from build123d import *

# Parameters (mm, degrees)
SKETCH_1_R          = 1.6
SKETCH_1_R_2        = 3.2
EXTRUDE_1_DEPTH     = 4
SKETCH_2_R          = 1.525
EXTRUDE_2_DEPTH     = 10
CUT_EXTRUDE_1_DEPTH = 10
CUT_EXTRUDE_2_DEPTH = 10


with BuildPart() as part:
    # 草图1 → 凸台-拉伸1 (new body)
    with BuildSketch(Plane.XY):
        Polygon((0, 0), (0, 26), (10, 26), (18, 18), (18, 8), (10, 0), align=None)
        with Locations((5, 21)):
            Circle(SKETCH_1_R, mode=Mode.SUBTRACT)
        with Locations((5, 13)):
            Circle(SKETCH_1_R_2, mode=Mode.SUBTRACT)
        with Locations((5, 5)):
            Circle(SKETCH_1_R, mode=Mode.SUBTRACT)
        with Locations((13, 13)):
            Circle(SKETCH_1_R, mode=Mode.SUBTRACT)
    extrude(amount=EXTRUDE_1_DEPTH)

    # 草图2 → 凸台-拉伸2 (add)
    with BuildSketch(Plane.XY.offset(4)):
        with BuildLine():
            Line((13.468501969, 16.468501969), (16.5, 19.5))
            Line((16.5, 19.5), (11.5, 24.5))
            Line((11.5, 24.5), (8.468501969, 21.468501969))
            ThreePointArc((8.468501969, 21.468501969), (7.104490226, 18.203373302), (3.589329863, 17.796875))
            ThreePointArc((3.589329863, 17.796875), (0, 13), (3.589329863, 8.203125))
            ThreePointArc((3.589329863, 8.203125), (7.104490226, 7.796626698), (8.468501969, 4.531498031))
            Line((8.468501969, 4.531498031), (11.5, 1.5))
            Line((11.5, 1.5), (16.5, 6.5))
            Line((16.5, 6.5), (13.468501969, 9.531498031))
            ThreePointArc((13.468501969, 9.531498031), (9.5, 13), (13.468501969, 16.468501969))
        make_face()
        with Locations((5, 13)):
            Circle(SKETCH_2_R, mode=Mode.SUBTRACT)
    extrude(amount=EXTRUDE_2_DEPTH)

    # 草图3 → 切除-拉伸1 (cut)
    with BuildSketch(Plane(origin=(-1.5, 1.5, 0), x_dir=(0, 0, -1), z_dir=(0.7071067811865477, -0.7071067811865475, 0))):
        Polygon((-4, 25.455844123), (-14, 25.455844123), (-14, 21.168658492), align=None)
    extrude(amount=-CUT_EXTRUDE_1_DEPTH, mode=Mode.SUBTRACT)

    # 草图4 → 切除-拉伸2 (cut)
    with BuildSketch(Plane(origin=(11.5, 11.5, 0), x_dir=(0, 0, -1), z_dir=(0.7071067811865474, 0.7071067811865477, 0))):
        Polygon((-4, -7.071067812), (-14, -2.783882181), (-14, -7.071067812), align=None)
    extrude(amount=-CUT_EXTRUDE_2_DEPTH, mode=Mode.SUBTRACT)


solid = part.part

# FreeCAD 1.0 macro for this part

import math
import FreeCAD as App
import Part
import Sketcher

V = App.Vector


def add_polygon(sketch, points):
    """Adds a closed chain of lines whose ends are joined by coincident constraints."""
    first, n = sketch.GeometryCount, len(points)
    for a, b in zip(points, points[1:] + points[:1]):
        sketch.addGeometry(Part.LineSegment(App.Vector(*a, 0), App.Vector(*b, 0)), False)
    for i in range(n):
        sketch.addConstraint(Sketcher.Constraint("Coincident", first + i, 2, first + (i + 1) % n, 1))

doc = App.newDocument("Part")
body = doc.addObject("PartDesign::Body", "Body")

# Sketch on XY plane
sketch1 = body.newObject("Sketcher::SketchObject", "Sketch")
sketch1.AttachmentSupport = (doc.getObject("XY_Plane"), [""])
sketch1.MapMode = "FlatFace"
add_polygon(sketch1, [(0, 26), (0, 0), (10, 0), (18, 8), (18, 18), (10, 26)])  # lines 0-5
sketch1.addGeometry(Part.Circle(V(5, 5, 0), V(0, 0, 1), 1.6), False)  # 6
sketch1.addGeometry(Part.Circle(V(13, 13, 0), V(0, 0, 1), 1.6), False)  # 7
sketch1.addGeometry(Part.Circle(V(5, 13, 0), V(0, 0, 1), 3.2), False)  # 8
sketch1.addGeometry(Part.Circle(V(5, 21, 0), V(0, 0, 1), 1.6), False)  # 9
sketch1.addConstraint([
    Sketcher.Constraint("Vertical", 0),
    Sketcher.Constraint("Horizontal", 1),
    Sketcher.Constraint("Vertical", 3),
    Sketcher.Constraint("Horizontal", 5),
    Sketcher.Constraint("Coincident", 0, 2, -1, 1),
    Sketcher.Constraint("Equal", 6, 7),
    Sketcher.Constraint("Equal", 7, 9),
    Sketcher.Constraint("Perpendicular", 2, 4),
    Sketcher.Constraint("Horizontal", 7, 3, 8, 3),
    Sketcher.Constraint("Vertical", 6, 3, 8, 3),
    Sketcher.Constraint("Vertical", 8, 3, 9, 3),
    Sketcher.Constraint("Vertical", 1, 2, 4, 2),
    Sketcher.Constraint("Equal", 5, 3),
    Sketcher.Constraint("Equal", 2, 4),
    Sketcher.Constraint("Diameter", 6, 3.2),
    Sketcher.Constraint("Diameter", 8, 6.4),
    Sketcher.Constraint("DistanceX", 1, 1, 1, 2, 10.0),
    Sketcher.Constraint("DistanceY", 0, 2, 0, 1, 26.0),
    Sketcher.Constraint("DistanceX", -1, 1, 6, 3, 5.0),
    Sketcher.Constraint("DistanceY", -1, 1, 6, 3, 5.0),
    Sketcher.Constraint("DistanceX", -1, 1, 7, 3, 13.0),
    Sketcher.Constraint("DistanceY", -1, 1, 7, 3, 13.0),
    Sketcher.Constraint("DistanceY", -1, 1, 9, 3, 21.0),
])
pad1 = body.newObject("PartDesign::Pad", "Pad")
pad1.Profile = sketch1
pad1.Length = 4

# Sketch on XY plane
sketch2 = body.newObject("Sketcher::SketchObject", "Sketch001")
sketch2.AttachmentSupport = (doc.getObject("XY_Plane"), [""])
sketch2.MapMode = "FlatFace"
sketch2.AttachmentOffset = App.Placement(V(0, 0, 4), App.Rotation())
sketch2.addGeometry([
    Part.LineSegment(V(13.468502, 16.468502, 0), V(16.5, 19.5, 0)),  # 0
    Part.LineSegment(V(16.5, 19.5, 0), V(11.5, 24.5, 0)),  # 1
    Part.LineSegment(V(11.5, 24.5, 0), V(8.468502, 21.468502, 0)),  # 2
    Part.ArcOfCircle(Part.Circle(V(5, 21, 0), V(0, 0, 1), 3.5), math.radians(-113.768901), math.radians(7.692572)),  # 3
    Part.ArcOfCircle(Part.Circle(V(5, 13, 0), V(0, 0, 1), 5), math.radians(106.387612), math.radians(253.612388)),  # 4
    Part.ArcOfCircle(Part.Circle(V(5, 5, 0), V(0, 0, 1), 3.5), math.radians(-7.692572), math.radians(113.768901)),  # 5
    Part.LineSegment(V(8.468502, 4.531498, 0), V(11.5, 1.5, 0)),  # 6
    Part.LineSegment(V(11.5, 1.5, 0), V(16.5, 6.5, 0)),  # 7
    Part.LineSegment(V(16.5, 6.5, 0), V(13.468502, 9.531498, 0)),  # 8
    Part.ArcOfCircle(Part.Circle(V(13, 13, 0), V(0, 0, 1), 3.5), math.radians(82.307428), math.radians(277.692572)),  # 9
    Part.Circle(V(5, 13, 0), V(0, 0, 1), 1.525),  # 10
], False)
sketch2.addConstraint([
    Sketcher.Constraint("Coincident", 0, 2, 1, 1),
    Sketcher.Constraint("Coincident", 1, 2, 2, 1),
    Sketcher.Constraint("Coincident", 2, 2, 3, 2),
    Sketcher.Constraint("Coincident", 3, 1, 4, 1),
    Sketcher.Constraint("Coincident", 4, 2, 5, 2),
    Sketcher.Constraint("Coincident", 5, 1, 6, 1),
    Sketcher.Constraint("Coincident", 6, 2, 7, 1),
    Sketcher.Constraint("Coincident", 7, 2, 8, 1),
    Sketcher.Constraint("Coincident", 8, 2, 9, 2),
    Sketcher.Constraint("Coincident", 9, 1, 0, 1),
    Sketcher.Constraint("Coincident", 10, 3, 4, 3),
    Sketcher.Constraint("Equal", 3, 5),
    Sketcher.Constraint("Equal", 5, 9),
    Sketcher.Constraint("Perpendicular", 0, 1),
    Sketcher.Constraint("Perpendicular", 1, 2),
    Sketcher.Constraint("Perpendicular", 2, 6),
    Sketcher.Constraint("Perpendicular", 6, 7),
    Sketcher.Constraint("Perpendicular", 7, 8),
    Sketcher.Constraint("Horizontal", 4, 3, 9, 3),
    Sketcher.Constraint("Vertical", 3, 3, 4, 3),
    Sketcher.Constraint("Vertical", 4, 3, 5, 3),
    Sketcher.Constraint("Vertical", 3, 1, 4, 2),
    Sketcher.Constraint("Vertical", 2, 2, 5, 1),
    Sketcher.Constraint("Vertical", 1, 2, 6, 2),
    Sketcher.Constraint("Vertical", 0, 2, 7, 2),
    Sketcher.Constraint("Vertical", 8, 2, 9, 1),
    Sketcher.Constraint("Equal", 0, 2),
    Sketcher.Constraint("Radius", 4, 5.0),
    Sketcher.Constraint("Radius", 3, 3.5),
    Sketcher.Constraint("Diameter", 10, 3.05),
    Sketcher.Constraint("DistanceX", -1, 1, 3, 3, 5.0),
    Sketcher.Constraint("DistanceY", -1, 1, 3, 3, 21.0),
    Sketcher.Constraint("DistanceY", -1, 1, 4, 3, 13.0),
    Sketcher.Constraint("DistanceX", -1, 1, 9, 3, 13.0),
    Sketcher.Constraint("DistanceX", 1, 2, 0, 2, 5.0),
    Sketcher.Constraint("DistanceY", 7, 2, 0, 2, 13.0),
])
pad2 = body.newObject("PartDesign::Pad", "Pad001")
pad2.Profile = sketch2
pad2.Length = 10

# Sketch on an angled plane
sketch3 = body.newObject("Sketcher::SketchObject", "Sketch002")
sketch3.Placement = App.Placement(V(-1.5, 1.5, 0), App.Rotation(V(0, 0, -1), V(0.707106781, 0.707106781, 0), V(0.707106781, -0.707106781, 0), "ZXY"))
add_polygon(sketch3, [(-4, 25.455844), (-14, 25.455844), (-14, 21.168658)])  # lines 0-2
sketch3.addConstraint([
    Sketcher.Constraint("Horizontal", 0),
    Sketcher.Constraint("Vertical", 1),
    Sketcher.Constraint("DistanceX", 0, 2, 0, 1, 10.0),
    Sketcher.Constraint("DistanceX", 0, 2, -1, 1, 14.0),
    Sketcher.Constraint("DistanceY", 1, 2, 1, 1, 4.287186),
    Sketcher.Constraint("DistanceY", -1, 1, 1, 2, 21.168658),
])
pocket1 = body.newObject("PartDesign::Pocket", "Pocket")
pocket1.Profile = sketch3
pocket1.Length = 10

# Sketch on an angled plane
sketch4 = body.newObject("Sketcher::SketchObject", "Sketch003")
sketch4.Placement = App.Placement(V(11.5, 11.5, 0), App.Rotation(V(0, 0, -1), V(-0.707106781, 0.707106781, 0), V(0.707106781, 0.707106781, 0), "ZXY"))
add_polygon(sketch4, [(-4, -7.071068), (-14, -2.783882), (-14, -7.071068)])  # lines 0-2
sketch4.addConstraint([
    Sketcher.Constraint("Vertical", 1),
    Sketcher.Constraint("Horizontal", 2),
    Sketcher.Constraint("DistanceX", 2, 1, 2, 2, 10.0),
    Sketcher.Constraint("DistanceX", 0, 2, -1, 1, 14.0),
    Sketcher.Constraint("DistanceY", 1, 2, 1, 1, 4.287186),
    Sketcher.Constraint("DistanceY", 0, 2, -1, 1, 2.783882),
])
pocket2 = body.newObject("PartDesign::Pocket", "Pocket001")
pocket2.Profile = sketch4
pocket2.Length = 10

doc.recompute()
